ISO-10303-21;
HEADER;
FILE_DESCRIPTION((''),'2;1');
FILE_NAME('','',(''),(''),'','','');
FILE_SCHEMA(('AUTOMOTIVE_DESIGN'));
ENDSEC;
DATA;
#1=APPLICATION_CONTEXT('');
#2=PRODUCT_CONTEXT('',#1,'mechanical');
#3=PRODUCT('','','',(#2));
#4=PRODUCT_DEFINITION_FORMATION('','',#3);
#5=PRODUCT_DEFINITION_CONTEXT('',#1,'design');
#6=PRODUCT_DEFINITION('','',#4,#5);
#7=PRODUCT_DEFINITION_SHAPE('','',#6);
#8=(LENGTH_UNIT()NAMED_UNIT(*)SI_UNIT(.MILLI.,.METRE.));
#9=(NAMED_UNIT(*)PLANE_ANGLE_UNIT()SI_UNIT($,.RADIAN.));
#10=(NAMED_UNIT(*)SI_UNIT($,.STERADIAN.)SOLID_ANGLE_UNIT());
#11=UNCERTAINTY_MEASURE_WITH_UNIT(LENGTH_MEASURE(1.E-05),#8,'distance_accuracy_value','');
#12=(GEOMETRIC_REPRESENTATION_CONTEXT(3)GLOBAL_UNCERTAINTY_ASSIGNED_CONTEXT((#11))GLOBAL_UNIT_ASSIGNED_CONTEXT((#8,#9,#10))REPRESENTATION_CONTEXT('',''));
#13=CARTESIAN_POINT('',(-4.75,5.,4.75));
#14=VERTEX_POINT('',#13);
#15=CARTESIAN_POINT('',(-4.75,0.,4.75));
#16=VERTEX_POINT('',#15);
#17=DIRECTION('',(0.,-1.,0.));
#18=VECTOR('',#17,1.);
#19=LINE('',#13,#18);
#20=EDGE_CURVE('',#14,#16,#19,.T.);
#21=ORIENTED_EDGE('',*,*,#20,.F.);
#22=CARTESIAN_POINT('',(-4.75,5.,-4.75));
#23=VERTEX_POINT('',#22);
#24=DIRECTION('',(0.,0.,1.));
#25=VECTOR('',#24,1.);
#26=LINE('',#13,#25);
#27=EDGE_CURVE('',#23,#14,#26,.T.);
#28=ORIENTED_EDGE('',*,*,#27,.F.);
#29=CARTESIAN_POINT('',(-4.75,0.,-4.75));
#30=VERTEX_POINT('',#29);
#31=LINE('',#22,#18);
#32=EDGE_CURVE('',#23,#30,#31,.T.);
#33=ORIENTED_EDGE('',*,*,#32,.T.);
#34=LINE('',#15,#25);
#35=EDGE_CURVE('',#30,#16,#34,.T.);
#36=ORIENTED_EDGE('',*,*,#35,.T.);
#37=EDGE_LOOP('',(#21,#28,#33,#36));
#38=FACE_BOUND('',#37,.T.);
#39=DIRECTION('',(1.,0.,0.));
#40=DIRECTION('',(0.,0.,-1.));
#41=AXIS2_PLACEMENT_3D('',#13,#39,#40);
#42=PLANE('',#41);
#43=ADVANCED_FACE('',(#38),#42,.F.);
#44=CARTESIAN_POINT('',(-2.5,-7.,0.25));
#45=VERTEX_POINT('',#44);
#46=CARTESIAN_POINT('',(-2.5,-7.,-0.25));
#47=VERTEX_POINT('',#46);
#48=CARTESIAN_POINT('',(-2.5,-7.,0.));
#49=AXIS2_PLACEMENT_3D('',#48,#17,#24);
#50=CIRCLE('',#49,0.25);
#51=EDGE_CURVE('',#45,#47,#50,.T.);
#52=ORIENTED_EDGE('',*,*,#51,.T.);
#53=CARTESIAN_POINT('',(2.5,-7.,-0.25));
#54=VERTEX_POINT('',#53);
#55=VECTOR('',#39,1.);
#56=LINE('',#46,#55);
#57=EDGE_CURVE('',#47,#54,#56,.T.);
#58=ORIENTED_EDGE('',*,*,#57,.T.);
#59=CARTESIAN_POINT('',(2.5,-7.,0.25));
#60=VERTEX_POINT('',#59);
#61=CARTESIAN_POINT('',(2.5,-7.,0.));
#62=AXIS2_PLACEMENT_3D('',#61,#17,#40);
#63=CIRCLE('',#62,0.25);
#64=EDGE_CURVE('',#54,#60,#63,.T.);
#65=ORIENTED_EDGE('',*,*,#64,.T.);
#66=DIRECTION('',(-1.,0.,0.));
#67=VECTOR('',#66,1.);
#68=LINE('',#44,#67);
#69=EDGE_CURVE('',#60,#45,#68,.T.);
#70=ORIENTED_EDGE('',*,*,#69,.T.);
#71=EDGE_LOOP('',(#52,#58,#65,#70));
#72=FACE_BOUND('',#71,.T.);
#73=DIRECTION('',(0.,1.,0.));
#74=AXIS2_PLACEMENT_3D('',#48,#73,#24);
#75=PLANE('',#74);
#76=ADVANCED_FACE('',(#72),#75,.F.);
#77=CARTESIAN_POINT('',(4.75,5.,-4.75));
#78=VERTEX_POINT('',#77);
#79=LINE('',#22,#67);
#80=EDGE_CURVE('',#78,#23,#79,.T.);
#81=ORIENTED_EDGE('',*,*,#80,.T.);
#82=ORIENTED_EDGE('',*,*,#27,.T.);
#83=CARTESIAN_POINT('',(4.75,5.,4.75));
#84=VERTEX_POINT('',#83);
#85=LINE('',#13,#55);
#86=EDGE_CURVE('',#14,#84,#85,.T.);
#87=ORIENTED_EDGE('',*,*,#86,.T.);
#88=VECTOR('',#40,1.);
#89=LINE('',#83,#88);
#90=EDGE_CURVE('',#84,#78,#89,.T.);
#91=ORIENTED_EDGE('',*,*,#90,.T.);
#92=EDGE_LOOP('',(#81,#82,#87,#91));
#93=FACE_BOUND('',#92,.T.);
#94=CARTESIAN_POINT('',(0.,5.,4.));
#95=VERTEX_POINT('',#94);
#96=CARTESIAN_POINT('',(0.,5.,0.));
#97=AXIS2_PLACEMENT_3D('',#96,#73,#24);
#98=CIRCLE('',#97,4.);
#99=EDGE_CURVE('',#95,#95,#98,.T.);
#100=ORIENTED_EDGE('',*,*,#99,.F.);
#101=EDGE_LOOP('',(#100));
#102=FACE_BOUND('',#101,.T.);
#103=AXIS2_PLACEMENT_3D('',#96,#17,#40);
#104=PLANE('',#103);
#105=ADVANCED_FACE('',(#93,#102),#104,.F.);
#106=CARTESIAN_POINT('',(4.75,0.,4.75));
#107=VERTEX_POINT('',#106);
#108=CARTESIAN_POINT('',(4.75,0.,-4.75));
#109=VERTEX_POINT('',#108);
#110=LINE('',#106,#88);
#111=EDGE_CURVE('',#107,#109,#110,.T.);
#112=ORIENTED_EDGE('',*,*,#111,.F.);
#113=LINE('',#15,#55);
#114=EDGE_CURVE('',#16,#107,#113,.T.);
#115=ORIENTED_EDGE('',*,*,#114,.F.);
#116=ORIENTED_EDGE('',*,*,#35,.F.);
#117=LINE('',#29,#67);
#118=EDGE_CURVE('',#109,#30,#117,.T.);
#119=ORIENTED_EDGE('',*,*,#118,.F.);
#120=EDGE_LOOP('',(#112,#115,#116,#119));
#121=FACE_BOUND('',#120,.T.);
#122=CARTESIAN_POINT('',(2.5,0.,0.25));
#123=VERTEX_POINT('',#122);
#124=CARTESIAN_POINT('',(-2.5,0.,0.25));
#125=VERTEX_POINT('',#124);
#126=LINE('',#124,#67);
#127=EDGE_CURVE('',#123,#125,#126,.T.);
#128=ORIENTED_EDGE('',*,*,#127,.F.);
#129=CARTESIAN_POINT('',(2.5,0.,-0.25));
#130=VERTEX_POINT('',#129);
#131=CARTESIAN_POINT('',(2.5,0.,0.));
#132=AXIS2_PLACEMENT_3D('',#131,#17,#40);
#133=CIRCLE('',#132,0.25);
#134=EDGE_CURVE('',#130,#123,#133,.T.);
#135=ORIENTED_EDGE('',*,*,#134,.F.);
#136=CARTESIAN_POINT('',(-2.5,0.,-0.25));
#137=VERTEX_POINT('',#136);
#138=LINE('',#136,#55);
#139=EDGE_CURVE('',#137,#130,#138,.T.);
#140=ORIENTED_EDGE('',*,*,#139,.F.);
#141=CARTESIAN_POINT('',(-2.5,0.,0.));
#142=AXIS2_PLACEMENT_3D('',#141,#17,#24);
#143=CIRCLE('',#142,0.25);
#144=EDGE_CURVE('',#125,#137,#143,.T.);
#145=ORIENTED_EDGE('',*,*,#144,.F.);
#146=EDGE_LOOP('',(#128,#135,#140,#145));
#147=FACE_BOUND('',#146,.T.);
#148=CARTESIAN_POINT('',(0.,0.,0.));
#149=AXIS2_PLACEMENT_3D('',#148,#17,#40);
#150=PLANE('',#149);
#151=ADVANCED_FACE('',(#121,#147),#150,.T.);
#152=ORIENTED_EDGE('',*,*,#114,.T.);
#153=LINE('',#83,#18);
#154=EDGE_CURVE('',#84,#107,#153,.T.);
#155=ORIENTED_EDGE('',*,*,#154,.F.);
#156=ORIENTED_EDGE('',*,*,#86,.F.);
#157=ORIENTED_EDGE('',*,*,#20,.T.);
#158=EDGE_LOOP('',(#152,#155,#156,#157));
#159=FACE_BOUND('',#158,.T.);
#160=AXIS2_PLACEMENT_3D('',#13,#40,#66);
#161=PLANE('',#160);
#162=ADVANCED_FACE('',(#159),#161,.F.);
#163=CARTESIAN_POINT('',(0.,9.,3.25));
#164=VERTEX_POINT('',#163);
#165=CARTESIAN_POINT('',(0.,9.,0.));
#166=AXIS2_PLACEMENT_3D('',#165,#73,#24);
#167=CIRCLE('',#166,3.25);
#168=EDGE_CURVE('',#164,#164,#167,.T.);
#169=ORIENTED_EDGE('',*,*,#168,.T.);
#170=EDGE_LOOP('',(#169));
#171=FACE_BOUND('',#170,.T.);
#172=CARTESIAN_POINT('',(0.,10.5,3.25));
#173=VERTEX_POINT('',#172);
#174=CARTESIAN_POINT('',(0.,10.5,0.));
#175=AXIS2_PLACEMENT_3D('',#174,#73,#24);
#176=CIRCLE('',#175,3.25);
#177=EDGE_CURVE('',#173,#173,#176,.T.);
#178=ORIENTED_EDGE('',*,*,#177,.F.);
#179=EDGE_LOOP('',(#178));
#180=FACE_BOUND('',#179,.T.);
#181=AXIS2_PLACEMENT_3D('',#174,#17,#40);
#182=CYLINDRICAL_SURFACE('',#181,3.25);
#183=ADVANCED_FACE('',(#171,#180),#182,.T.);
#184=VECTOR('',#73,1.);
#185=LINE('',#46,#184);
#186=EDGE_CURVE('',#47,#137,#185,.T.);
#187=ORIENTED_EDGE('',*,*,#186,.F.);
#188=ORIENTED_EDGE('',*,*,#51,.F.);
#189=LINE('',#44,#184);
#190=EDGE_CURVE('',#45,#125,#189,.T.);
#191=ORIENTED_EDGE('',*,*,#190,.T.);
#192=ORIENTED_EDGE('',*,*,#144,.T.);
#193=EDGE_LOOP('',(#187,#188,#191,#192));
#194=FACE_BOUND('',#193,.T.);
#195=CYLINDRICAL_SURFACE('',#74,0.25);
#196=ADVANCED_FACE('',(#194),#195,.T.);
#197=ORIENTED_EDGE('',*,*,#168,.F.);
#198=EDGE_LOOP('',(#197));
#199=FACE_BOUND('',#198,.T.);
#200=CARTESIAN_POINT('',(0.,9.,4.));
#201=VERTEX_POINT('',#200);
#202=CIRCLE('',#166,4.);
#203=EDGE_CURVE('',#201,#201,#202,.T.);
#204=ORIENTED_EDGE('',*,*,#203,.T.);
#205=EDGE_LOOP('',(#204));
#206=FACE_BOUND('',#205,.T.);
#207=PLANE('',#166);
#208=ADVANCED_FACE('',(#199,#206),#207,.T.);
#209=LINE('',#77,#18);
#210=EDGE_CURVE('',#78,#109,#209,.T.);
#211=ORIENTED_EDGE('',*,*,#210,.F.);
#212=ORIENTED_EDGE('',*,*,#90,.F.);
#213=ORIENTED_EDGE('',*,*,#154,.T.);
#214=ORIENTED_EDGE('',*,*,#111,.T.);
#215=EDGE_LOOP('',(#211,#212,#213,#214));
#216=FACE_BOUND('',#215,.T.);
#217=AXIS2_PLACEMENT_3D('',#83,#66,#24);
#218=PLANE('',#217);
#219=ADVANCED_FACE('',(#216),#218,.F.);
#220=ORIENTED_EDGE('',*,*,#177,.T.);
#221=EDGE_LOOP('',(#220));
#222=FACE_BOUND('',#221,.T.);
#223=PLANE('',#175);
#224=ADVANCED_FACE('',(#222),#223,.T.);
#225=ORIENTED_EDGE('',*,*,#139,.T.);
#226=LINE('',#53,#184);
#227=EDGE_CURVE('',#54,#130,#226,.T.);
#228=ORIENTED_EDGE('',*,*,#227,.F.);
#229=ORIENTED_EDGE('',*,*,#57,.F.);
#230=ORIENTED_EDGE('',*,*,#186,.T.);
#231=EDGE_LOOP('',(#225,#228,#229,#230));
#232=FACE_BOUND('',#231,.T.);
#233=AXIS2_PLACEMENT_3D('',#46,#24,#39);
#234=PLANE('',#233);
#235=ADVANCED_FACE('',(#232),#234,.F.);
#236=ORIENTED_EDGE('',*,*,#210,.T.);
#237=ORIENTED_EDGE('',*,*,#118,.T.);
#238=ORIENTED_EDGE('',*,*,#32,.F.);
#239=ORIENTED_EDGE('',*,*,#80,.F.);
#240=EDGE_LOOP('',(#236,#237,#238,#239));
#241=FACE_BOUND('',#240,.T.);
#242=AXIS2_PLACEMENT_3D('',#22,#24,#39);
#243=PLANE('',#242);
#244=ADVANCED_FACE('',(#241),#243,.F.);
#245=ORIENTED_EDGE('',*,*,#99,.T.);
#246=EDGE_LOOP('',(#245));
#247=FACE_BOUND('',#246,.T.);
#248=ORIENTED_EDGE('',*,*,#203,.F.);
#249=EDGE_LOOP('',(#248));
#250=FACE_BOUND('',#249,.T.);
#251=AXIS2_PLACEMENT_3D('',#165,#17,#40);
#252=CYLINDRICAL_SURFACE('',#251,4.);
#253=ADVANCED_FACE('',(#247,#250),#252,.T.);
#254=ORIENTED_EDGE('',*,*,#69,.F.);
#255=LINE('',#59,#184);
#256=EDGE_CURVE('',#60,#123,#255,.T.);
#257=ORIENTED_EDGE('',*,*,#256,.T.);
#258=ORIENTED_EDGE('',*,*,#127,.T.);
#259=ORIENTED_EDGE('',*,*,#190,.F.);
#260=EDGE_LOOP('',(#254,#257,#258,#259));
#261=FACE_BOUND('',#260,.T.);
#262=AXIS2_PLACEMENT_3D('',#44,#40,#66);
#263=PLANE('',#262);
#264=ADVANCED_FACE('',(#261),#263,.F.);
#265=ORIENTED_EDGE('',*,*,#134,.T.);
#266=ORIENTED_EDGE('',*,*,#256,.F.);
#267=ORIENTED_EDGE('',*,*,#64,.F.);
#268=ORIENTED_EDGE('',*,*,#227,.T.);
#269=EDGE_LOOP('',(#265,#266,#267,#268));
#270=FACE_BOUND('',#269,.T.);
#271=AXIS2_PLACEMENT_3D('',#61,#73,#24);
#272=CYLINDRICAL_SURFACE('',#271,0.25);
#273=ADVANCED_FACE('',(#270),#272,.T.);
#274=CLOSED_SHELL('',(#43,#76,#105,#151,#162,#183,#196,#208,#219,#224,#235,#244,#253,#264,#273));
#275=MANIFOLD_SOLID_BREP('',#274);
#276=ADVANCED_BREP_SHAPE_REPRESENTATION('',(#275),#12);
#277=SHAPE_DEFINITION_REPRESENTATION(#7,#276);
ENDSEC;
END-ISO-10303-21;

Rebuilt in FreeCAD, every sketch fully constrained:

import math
import FreeCAD as App
import Part
import Sketcher
Q = App.Units.Quantity


def add_polygon(sketch, points):
    """Adds a closed chain of lines whose ends are joined by coincident constraints."""
    first, n = sketch.GeometryCount, len(points)
    for a, b in zip(points, points[1:] + points[:1]):
        sketch.addGeometry(Part.LineSegment(App.Vector(*a, 0), App.Vector(*b, 0)), False)
    for i in range(n):
        sketch.addConstraint(Sketcher.Constraint("Coincident", first + i, 2, first + (i + 1) % n, 1))

doc = App.newDocument("Part")
body = doc.addObject("PartDesign::Body", "Body")

sketch1 = body.newObject("Sketcher::SketchObject", "Sketch")
sketch1.AttachmentSupport = (doc.getObject("XZ_Plane"), [""])
sketch1.MapMode = "FlatFace"
add_polygon(sketch1, [(-5, -5), (-5, 5), (5, 5), (5, -5)])
sketch1.addConstraint([
    Sketcher.Constraint("Vertical", 0),
    Sketcher.Constraint("Horizontal", 1),
    Sketcher.Constraint("Vertical", 2),
    Sketcher.Constraint("Horizontal", 3),
    Sketcher.Constraint("Symmetric", 0, 2, 2, 2, -1, 1),
    Sketcher.Constraint("Equal", 3, 0),
    Sketcher.Constraint("DistanceX", 1, 1, 1, 2, Q("9.5 mm")),
])
pad1 = body.newObject("PartDesign::Pad", "Pad")
pad1.Profile = sketch1
pad1.Length = 5
pad1.Reversed = True

sketch2 = body.newObject("Sketcher::SketchObject", "Sketch001")
sketch2.AttachmentSupport = (doc.getObject("XZ_Plane"), [""])
sketch2.MapMode = "FlatFace"
sketch2.AttachmentOffset = App.Placement(App.Vector(0, 0, -5), App.Rotation())
sketch2.addGeometry(Part.Circle(App.Vector(0, 0, 0), App.Vector(0, 0, 1), 4), False)
sketch2.addConstraint([
    Sketcher.Constraint("Coincident", 0, 3, -1, 1),
    Sketcher.Constraint("Diameter", 0, Q("8 mm")),
])
pad2 = body.newObject("PartDesign::Pad", "Pad001")
pad2.Profile = sketch2
pad2.Length = 4
pad2.Reversed = True

sketch3 = body.newObject("Sketcher::SketchObject", "Sketch002")
sketch3.AttachmentSupport = (doc.getObject("XZ_Plane"), [""])
sketch3.MapMode = "FlatFace"
sketch3.AttachmentOffset = App.Placement(App.Vector(0, 0, -9), App.Rotation())
sketch3.addGeometry(Part.Circle(App.Vector(0, 0, 0), App.Vector(0, 0, 1), 3.2), False)
sketch3.addConstraint([
    Sketcher.Constraint("Coincident", 0, 3, -1, 1),
    Sketcher.Constraint("Diameter", 0, Q("6.5 mm")),
])
pad3 = body.newObject("PartDesign::Pad", "Pad002")
pad3.Profile = sketch3
pad3.Length = 1.5
pad3.Reversed = True

sketch4 = body.newObject("Sketcher::SketchObject", "Sketch003")
sketch4.AttachmentSupport = (doc.getObject("XZ_Plane"), [""])
sketch4.MapMode = "FlatFace"
sketch4.addGeometry([
    Part.LineSegment(App.Vector(-2.5, -0.25, 0), App.Vector(2.5, -0.25, 0)),
    Part.ArcOfCircle(Part.Circle(App.Vector(2.5, 0, 0), App.Vector(0, 0, 1), 0.25), math.radians(-90), math.radians(90)),
    Part.LineSegment(App.Vector(2.5, 0.25, 0), App.Vector(-2.5, 0.25, 0)),
    Part.ArcOfCircle(Part.Circle(App.Vector(-2.5, 0, 0), App.Vector(0, 0, 1), 0.25), math.radians(90), math.radians(270)),
], False)
sketch4.addConstraint([
    Sketcher.Constraint("Tangent", 0, 2, 1, 1),
    Sketcher.Constraint("Tangent", 1, 2, 2, 1),
    Sketcher.Constraint("Tangent", 2, 2, 3, 1),
    Sketcher.Constraint("Tangent", 3, 2, 0, 1),
    Sketcher.Constraint("Horizontal", 0),
    Sketcher.Constraint("Horizontal", 2),
    Sketcher.Constraint("Symmetric", 1, 3, 3, 3, -1, 1),
    Sketcher.Constraint("DistanceX", 0, 1, 0, 2, Q("5 mm")),
    Sketcher.Constraint("Radius", 1, Q("0.25 mm")),
])
pad4 = body.newObject("PartDesign::Pad", "Pad003")
pad4.Profile = sketch4
pad4.Length = 7

doc.recompute()
